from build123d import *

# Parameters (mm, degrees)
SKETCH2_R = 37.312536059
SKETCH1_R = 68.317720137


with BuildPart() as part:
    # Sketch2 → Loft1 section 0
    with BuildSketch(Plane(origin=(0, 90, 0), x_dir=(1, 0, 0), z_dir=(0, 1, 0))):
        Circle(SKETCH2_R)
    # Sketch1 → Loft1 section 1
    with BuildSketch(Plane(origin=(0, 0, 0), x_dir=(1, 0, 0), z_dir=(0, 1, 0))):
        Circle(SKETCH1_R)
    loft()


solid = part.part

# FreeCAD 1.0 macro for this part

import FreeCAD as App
import Part
import Sketcher

V = App.Vector
Q = App.Units.Quantity

doc = App.newDocument("Part")
body = doc.addObject("PartDesign::Body", "Body")

# Sketch on XZ plane
sketch1 = body.newObject("Sketcher::SketchObject", "Sketch")
sketch1.AttachmentSupport = (doc.getObject("XZ_Plane"), [""])
sketch1.MapMode = "FlatFace"
sketch1.AttachmentOffset = App.Placement(V(0, 0, -90), App.Rotation())
sketch1.addGeometry(Part.Circle(V(0, 0, 0), V(0, 0, 1), 37), False)
sketch1.addConstraint([
    Sketcher.Constraint("Coincident", 0, 3, -1, 1),
    Sketcher.Constraint("Diameter", 0, Q("74.625072 mm")),
])

# Sketch on XZ plane
sketch2 = body.newObject("Sketcher::SketchObject", "Sketch001")
sketch2.AttachmentSupport = (doc.getObject("XZ_Plane"), [""])
sketch2.MapMode = "FlatFace"
sketch2.addGeometry(Part.Circle(V(0, 0, 0), V(0, 0, 1), 68), False)
sketch2.addConstraint([
    Sketcher.Constraint("Coincident", 0, 3, -1, 1),
    Sketcher.Constraint("Diameter", 0, Q("136.63544 mm")),
])

additiveloft = body.newObject("PartDesign::AdditiveLoft", "AdditiveLoft")
additiveloft.Profile = sketch1
additiveloft.Sections = [sketch2]

doc.recompute()
